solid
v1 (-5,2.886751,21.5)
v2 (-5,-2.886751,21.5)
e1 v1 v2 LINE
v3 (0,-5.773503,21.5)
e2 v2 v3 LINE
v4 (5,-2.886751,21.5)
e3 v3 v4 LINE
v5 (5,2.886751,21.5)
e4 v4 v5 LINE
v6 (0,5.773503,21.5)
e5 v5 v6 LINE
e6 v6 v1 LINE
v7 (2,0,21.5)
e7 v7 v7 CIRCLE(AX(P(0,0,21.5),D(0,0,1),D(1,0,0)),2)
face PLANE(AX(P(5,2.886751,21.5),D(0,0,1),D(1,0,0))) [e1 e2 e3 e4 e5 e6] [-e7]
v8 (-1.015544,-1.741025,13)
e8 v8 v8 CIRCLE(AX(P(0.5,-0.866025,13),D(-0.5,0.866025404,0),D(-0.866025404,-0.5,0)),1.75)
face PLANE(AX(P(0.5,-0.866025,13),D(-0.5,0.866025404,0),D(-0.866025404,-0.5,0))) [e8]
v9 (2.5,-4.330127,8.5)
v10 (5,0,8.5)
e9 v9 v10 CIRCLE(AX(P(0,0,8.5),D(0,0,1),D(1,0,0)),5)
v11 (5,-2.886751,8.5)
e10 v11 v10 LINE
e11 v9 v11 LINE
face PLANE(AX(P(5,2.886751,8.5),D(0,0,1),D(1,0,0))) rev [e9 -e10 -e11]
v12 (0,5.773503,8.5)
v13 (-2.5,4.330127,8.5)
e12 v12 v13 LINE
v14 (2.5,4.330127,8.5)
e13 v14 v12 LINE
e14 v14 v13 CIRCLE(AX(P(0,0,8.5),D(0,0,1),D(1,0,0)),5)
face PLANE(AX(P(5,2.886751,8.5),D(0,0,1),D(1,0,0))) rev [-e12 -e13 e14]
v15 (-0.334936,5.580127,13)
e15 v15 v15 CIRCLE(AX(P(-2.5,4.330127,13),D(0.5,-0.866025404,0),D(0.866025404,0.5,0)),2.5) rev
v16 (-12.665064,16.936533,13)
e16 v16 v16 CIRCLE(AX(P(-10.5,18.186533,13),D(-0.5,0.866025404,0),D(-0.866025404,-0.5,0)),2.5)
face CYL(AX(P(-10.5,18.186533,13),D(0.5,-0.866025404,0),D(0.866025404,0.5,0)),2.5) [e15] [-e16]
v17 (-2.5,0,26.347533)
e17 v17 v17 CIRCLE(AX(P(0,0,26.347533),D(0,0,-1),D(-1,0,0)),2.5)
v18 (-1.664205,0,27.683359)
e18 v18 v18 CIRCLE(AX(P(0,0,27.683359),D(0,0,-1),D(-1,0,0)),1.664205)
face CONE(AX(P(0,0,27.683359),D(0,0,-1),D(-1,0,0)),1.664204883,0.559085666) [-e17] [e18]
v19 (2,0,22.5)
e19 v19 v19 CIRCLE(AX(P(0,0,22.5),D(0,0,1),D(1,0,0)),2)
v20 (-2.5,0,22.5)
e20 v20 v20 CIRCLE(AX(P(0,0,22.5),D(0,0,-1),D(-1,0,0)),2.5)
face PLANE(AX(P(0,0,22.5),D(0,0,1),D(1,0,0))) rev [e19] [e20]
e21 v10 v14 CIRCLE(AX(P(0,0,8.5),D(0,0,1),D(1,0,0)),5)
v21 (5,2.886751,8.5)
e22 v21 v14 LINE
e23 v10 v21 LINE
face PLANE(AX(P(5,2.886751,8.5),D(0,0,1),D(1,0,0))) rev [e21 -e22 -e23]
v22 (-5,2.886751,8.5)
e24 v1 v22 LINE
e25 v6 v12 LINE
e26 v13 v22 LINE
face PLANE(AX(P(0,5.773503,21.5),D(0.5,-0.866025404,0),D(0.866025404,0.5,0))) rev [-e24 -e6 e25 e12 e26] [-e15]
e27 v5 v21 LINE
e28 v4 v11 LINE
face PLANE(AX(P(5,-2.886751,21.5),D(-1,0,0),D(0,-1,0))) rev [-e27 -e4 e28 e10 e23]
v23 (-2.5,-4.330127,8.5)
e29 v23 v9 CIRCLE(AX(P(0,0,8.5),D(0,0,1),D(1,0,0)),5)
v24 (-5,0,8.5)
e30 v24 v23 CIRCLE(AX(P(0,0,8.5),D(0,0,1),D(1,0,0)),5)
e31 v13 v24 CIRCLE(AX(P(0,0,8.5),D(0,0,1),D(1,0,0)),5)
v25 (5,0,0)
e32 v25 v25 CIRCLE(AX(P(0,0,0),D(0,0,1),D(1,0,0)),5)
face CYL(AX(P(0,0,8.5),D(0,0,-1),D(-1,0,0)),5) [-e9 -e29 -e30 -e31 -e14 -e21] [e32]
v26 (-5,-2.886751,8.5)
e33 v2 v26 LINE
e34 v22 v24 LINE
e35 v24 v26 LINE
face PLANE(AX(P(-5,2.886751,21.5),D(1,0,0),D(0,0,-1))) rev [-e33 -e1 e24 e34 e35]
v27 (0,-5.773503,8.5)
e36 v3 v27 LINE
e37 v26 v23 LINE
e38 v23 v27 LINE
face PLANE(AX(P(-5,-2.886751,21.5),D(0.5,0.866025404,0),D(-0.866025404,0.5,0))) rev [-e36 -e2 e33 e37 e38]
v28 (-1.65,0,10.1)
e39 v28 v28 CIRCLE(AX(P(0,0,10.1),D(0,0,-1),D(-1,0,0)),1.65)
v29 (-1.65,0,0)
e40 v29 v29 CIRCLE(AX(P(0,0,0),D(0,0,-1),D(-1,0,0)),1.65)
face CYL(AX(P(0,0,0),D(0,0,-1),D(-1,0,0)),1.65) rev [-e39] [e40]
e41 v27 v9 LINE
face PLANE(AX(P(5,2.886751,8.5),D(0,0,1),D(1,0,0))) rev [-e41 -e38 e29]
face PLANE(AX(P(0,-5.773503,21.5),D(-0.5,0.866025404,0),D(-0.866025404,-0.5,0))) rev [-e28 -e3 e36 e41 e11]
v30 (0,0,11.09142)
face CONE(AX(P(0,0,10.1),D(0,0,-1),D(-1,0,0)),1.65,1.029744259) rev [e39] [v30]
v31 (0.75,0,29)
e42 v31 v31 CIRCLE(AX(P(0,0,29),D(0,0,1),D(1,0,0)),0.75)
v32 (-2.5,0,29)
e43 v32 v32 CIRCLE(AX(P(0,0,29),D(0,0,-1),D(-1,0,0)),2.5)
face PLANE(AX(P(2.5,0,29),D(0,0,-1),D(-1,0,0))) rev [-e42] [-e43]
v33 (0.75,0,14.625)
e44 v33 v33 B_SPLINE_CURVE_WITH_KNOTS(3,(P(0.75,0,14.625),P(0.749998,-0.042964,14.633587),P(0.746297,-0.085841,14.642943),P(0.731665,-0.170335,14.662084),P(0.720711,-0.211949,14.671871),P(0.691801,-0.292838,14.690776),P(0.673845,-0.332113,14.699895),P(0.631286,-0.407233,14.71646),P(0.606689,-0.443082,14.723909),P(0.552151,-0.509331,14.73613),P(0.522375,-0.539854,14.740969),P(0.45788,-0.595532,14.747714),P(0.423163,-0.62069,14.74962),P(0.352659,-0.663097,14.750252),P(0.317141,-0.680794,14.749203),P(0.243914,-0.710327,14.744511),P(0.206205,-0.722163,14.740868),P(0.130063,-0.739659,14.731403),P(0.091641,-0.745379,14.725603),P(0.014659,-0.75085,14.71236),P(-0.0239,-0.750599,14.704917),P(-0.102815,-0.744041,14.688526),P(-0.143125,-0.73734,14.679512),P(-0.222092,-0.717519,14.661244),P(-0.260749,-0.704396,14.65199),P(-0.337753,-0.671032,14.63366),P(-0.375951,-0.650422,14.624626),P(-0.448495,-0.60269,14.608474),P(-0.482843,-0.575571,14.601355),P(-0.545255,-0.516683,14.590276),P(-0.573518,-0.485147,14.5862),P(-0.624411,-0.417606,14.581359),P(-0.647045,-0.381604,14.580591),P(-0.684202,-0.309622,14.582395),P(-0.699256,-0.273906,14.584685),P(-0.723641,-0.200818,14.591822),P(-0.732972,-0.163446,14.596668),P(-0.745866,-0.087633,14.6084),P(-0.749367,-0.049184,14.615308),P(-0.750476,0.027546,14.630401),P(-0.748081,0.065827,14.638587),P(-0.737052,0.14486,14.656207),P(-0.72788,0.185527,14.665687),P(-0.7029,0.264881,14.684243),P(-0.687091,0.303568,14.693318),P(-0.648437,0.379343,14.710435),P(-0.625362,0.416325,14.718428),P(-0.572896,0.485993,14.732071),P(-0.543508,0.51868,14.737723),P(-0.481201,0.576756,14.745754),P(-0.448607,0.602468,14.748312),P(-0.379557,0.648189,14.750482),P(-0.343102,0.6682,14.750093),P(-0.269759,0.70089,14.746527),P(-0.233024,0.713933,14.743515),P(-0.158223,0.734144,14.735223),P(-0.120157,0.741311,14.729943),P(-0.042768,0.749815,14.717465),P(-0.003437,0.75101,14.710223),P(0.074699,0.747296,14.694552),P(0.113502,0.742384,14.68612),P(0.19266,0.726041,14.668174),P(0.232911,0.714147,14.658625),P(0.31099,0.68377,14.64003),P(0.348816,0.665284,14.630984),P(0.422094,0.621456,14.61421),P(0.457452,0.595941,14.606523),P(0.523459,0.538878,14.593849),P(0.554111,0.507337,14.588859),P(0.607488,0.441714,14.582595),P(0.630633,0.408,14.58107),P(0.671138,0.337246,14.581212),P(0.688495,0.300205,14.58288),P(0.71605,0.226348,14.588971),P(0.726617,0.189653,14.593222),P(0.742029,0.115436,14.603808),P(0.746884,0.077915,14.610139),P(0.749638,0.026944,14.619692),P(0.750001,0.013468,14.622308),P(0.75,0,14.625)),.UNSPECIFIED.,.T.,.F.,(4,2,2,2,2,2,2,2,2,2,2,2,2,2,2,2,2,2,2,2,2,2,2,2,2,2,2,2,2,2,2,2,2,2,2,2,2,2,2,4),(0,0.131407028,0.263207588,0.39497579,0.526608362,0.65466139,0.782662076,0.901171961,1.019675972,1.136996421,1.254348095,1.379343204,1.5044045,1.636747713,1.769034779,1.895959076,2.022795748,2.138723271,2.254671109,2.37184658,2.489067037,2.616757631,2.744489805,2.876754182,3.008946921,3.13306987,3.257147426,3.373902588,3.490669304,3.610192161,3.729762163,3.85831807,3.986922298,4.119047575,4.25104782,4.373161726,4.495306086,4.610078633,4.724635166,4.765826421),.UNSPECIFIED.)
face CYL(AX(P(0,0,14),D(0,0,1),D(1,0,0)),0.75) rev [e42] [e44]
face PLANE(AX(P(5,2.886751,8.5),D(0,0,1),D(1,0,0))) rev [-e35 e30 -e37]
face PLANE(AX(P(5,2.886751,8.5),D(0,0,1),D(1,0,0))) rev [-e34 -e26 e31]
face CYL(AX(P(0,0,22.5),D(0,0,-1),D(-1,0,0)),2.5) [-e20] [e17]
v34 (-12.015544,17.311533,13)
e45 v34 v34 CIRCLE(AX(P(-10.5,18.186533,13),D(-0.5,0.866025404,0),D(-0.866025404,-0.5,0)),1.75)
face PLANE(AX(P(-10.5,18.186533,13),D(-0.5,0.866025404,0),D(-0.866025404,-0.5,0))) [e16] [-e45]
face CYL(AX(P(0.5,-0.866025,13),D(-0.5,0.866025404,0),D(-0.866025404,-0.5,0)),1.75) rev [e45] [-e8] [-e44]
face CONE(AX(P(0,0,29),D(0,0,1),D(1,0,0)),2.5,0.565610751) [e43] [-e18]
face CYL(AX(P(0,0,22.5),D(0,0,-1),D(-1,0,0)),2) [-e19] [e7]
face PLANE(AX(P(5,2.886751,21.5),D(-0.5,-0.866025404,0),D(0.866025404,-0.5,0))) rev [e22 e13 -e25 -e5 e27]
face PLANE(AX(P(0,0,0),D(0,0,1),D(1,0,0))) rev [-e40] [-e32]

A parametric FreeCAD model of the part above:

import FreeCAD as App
import Part
import Sketcher

V = App.Vector
Q = App.Units.Quantity

doc = App.newDocument("Part")
body = doc.addObject("PartDesign::Body", "Body")

# Sketch on XY plane
sketch1 = body.newObject("Sketcher::SketchObject", "Sketch")
sketch1.AttachmentSupport = (doc.getObject("XY_Plane"), [""])
sketch1.MapMode = "FlatFace"
sketch1.addGeometry(Part.Circle(V(0, 0, 0), V(0, 0, 1), 5), False)
sketch1.addConstraint([
    Sketcher.Constraint("Coincident", 0, 3, -1, 1),
    Sketcher.Constraint("Diameter", 0, 10.0),
])
pad1 = body.newObject("PartDesign::Pad", "Pad")
pad1.Profile = sketch1
pad1.Length = 8.5

# Sketch on XY plane
sketch2 = body.newObject("Sketcher::SketchObject", "Sketch001")
sketch2.AttachmentSupport = (doc.getObject("XY_Plane"), [""])
sketch2.MapMode = "FlatFace"
sketch2.AttachmentOffset = App.Placement(V(0, 0, 8.5), App.Rotation())
sketch2.addGeometry([
    Part.LineSegment(V(5, 3, 0), V(0, 6, 0)),  # 0
    Part.LineSegment(V(0, 6, 0), V(-5, 3, 0)),  # 1
    Part.LineSegment(V(-5, 3, 0), V(-5, -3, 0)),  # 2
    Part.LineSegment(V(-5, -3, 0), V(0, -6, 0)),  # 3
    Part.LineSegment(V(0, -6, 0), V(5, -3, 0)),  # 4
    Part.LineSegment(V(5, -3, 0), V(5, 3, 0)),  # 5
], False)
sketch2.addConstraint([
    Sketcher.Constraint("Coincident", 0, 2, 1, 1),
    Sketcher.Constraint("Coincident", 1, 2, 2, 1),
    Sketcher.Constraint("Coincident", 2, 2, 3, 1),
    Sketcher.Constraint("Coincident", 3, 2, 4, 1),
    Sketcher.Constraint("Coincident", 4, 2, 5, 1),
    Sketcher.Constraint("Coincident", 5, 2, 0, 1),
    Sketcher.Constraint("Vertical", 2),
    Sketcher.Constraint("Vertical", 5),
    Sketcher.Constraint("Symmetric", 0, 2, 3, 2, -1, 1),
    Sketcher.Constraint("Symmetric", 1, 2, 4, 2, -1, 1),
    Sketcher.Constraint("PointOnObject", 0, 2, -2),
    Sketcher.Constraint("Parallel", 0, 3),
    Sketcher.Constraint("Horizontal", 2, 2, 4, 2),
    Sketcher.Constraint("Angle", 0, Q("150 deg")),
    Sketcher.Constraint("DistanceX", 1, 2, -1, 1, 5.0),
    Sketcher.Constraint("DistanceY", 2, 2, 2, 1, 5.773503),
])
pad2 = body.newObject("PartDesign::Pad", "Pad001")
pad2.Profile = sketch2
pad2.Length = 13

# Sketch on XY plane
sketch3 = body.newObject("Sketcher::SketchObject", "Sketch002")
sketch3.AttachmentSupport = (doc.getObject("XY_Plane"), [""])
sketch3.MapMode = "FlatFace"
sketch3.AttachmentOffset = App.Placement(V(0, 0, 21.5), App.Rotation())
sketch3.addGeometry(Part.Circle(V(0, 0, 0), V(0, 0, 1), 2), False)
sketch3.addConstraint([
    Sketcher.Constraint("Coincident", 0, 3, -1, 1),
    Sketcher.Constraint("Diameter", 0, 4.0),
])
pad3 = body.newObject("PartDesign::Pad", "Pad002")
pad3.Profile = sketch3
pad3.Length = 1

# Sketch on XZ plane
sketch4 = body.newObject("Sketcher::SketchObject", "Sketch003")
sketch4.AttachmentSupport = (doc.getObject("XZ_Plane"), [""])
sketch4.MapMode = "FlatFace"
sketch4.addGeometry([
    Part.LineSegment(V(2.5, 22.5, 0), V(0, 22.5, 0)),  # 0
    Part.LineSegment(V(0, 22.5, 0), V(0, 29, 0)),  # 1
    Part.LineSegment(V(0, 29, 0), V(2.5, 29, 0)),  # 2
    Part.LineSegment(V(2.5, 29, 0), V(1.7, 27.7, 0)),  # 3
    Part.LineSegment(V(1.7, 27.7, 0), V(2.5, 26.3, 0)),  # 4
    Part.LineSegment(V(2.5, 26.3, 0), V(2.5, 22.5, 0)),  # 5
], False)
sketch4.addConstraint([
    Sketcher.Constraint("Coincident", 0, 2, 1, 1),
    Sketcher.Constraint("Coincident", 1, 2, 2, 1),
    Sketcher.Constraint("Coincident", 2, 2, 3, 1),
    Sketcher.Constraint("Coincident", 3, 2, 4, 1),
    Sketcher.Constraint("Coincident", 4, 2, 5, 1),
    Sketcher.Constraint("Coincident", 5, 2, 0, 1),
    Sketcher.Constraint("Horizontal", 0),
    Sketcher.Constraint("Vertical", 1),
    Sketcher.Constraint("Horizontal", 2),
    Sketcher.Constraint("Vertical", 5),
    Sketcher.Constraint("PointOnObject", 0, 2, -2),
    Sketcher.Constraint("Vertical", 2, 2, 4, 2),
    Sketcher.Constraint("DistanceX", 0, 2, 0, 1, 2.5),
    Sketcher.Constraint("DistanceY", 1, 1, 1, 2, 6.5),
    Sketcher.Constraint("DistanceY", -1, 1, 1, 2, 29.0),
    Sketcher.Constraint("Distance", 3, 1.559518),
    Sketcher.Constraint("Distance", 4, 1.575749),
    Sketcher.Constraint("DistanceY", 5, 2, 5, 1, 3.847533),
])
revolution = body.newObject("PartDesign::Revolution", "Revolution")
revolution.Profile = sketch4
revolution.ReferenceAxis = (sketch4, ["V_Axis"])
revolution.Angle = 360

# Sketch on XY plane
sketch5 = body.newObject("Sketcher::SketchObject", "Sketch004")
sketch5.AttachmentSupport = (doc.getObject("XY_Plane"), [""])
sketch5.MapMode = "FlatFace"
sketch5.AttachmentOffset = App.Placement(V(0, 0, 29), App.Rotation())
sketch5.addGeometry(Part.Circle(V(0, 0, 0), V(0, 0, 1), 0.8), False)
sketch5.addConstraint([
    Sketcher.Constraint("Coincident", 0, 3, -1, 1),
    Sketcher.Constraint("Diameter", 0, 1.5),
])
pocket1 = body.newObject("PartDesign::Pocket", "Pocket")
pocket1.Profile = sketch5
pocket1.Length = 15

# Sketch on an angled plane
sketch6 = body.newObject("Sketcher::SketchObject", "Sketch005")
sketch6.Placement = App.Placement(V(-2.5, 4.330127, 0), App.Rotation(V(0.866025404, 0.5, 0), V(0, 0, -1), V(-0.5, 0.866025404, 0), "ZXY"))
sketch6.addGeometry(Part.Circle(V(0, -13, 0), V(0, 0, 1), 2.5), False)
sketch6.addConstraint([
    Sketcher.Constraint("PointOnObject", 0, 3, -2),
    Sketcher.Constraint("Diameter", 0, 5.0),
    Sketcher.Constraint("DistanceY", 0, 3, -1, 1, 13.0),
])
pad4 = body.newObject("PartDesign::Pad", "Pad003")
pad4.Profile = sketch6
pad4.Length = 16

# Sketch on an angled plane
sketch7 = body.newObject("Sketcher::SketchObject", "Sketch006")
sketch7.Placement = App.Placement(V(-10.5, 18.186533, 0), App.Rotation(V(0.866025404, 0.5, 0), V(0, 0, -1), V(-0.5, 0.866025404, 0), "ZXY"))
sketch7.addGeometry(Part.Circle(V(0, -13, 0), V(0, 0, 1), 1.8), False)
sketch7.addConstraint([
    Sketcher.Constraint("PointOnObject", 0, 3, -2),
    Sketcher.Constraint("Diameter", 0, 3.5),
    Sketcher.Constraint("DistanceY", 0, 3, -1, 1, 13.0),
])
pocket2 = body.newObject("PartDesign::Pocket", "Pocket001")
pocket2.Profile = sketch7
pocket2.Length = 22

# Sketch on XY plane
sketch8 = body.newObject("Sketcher::SketchObject", "Sketch007")
sketch8.AttachmentSupport = (doc.getObject("XY_Plane"), [""])
sketch8.MapMode = "FlatFace"
sketch8.addGeometry(Part.Circle(V(0, 0, 0), V(0, 0, 1), 1.6), False)
sketch8.addConstraint([
    Sketcher.Constraint("Coincident", 0, 3, -1, 1),
    Sketcher.Constraint("Diameter", 0, 3.3),
])
doc.recompute()
hole = body.newObject("PartDesign::Hole", "Hole")
hole.Profile = sketch8
hole.ThreadType = "None"
hole.Diameter = 3.3
hole.DepthType = "Dimension"
hole.Depth = 10.1
hole.DrillPoint = "Angled"
hole.DrillPointAngle = 118
hole.Reversed = True

doc.recompute()
